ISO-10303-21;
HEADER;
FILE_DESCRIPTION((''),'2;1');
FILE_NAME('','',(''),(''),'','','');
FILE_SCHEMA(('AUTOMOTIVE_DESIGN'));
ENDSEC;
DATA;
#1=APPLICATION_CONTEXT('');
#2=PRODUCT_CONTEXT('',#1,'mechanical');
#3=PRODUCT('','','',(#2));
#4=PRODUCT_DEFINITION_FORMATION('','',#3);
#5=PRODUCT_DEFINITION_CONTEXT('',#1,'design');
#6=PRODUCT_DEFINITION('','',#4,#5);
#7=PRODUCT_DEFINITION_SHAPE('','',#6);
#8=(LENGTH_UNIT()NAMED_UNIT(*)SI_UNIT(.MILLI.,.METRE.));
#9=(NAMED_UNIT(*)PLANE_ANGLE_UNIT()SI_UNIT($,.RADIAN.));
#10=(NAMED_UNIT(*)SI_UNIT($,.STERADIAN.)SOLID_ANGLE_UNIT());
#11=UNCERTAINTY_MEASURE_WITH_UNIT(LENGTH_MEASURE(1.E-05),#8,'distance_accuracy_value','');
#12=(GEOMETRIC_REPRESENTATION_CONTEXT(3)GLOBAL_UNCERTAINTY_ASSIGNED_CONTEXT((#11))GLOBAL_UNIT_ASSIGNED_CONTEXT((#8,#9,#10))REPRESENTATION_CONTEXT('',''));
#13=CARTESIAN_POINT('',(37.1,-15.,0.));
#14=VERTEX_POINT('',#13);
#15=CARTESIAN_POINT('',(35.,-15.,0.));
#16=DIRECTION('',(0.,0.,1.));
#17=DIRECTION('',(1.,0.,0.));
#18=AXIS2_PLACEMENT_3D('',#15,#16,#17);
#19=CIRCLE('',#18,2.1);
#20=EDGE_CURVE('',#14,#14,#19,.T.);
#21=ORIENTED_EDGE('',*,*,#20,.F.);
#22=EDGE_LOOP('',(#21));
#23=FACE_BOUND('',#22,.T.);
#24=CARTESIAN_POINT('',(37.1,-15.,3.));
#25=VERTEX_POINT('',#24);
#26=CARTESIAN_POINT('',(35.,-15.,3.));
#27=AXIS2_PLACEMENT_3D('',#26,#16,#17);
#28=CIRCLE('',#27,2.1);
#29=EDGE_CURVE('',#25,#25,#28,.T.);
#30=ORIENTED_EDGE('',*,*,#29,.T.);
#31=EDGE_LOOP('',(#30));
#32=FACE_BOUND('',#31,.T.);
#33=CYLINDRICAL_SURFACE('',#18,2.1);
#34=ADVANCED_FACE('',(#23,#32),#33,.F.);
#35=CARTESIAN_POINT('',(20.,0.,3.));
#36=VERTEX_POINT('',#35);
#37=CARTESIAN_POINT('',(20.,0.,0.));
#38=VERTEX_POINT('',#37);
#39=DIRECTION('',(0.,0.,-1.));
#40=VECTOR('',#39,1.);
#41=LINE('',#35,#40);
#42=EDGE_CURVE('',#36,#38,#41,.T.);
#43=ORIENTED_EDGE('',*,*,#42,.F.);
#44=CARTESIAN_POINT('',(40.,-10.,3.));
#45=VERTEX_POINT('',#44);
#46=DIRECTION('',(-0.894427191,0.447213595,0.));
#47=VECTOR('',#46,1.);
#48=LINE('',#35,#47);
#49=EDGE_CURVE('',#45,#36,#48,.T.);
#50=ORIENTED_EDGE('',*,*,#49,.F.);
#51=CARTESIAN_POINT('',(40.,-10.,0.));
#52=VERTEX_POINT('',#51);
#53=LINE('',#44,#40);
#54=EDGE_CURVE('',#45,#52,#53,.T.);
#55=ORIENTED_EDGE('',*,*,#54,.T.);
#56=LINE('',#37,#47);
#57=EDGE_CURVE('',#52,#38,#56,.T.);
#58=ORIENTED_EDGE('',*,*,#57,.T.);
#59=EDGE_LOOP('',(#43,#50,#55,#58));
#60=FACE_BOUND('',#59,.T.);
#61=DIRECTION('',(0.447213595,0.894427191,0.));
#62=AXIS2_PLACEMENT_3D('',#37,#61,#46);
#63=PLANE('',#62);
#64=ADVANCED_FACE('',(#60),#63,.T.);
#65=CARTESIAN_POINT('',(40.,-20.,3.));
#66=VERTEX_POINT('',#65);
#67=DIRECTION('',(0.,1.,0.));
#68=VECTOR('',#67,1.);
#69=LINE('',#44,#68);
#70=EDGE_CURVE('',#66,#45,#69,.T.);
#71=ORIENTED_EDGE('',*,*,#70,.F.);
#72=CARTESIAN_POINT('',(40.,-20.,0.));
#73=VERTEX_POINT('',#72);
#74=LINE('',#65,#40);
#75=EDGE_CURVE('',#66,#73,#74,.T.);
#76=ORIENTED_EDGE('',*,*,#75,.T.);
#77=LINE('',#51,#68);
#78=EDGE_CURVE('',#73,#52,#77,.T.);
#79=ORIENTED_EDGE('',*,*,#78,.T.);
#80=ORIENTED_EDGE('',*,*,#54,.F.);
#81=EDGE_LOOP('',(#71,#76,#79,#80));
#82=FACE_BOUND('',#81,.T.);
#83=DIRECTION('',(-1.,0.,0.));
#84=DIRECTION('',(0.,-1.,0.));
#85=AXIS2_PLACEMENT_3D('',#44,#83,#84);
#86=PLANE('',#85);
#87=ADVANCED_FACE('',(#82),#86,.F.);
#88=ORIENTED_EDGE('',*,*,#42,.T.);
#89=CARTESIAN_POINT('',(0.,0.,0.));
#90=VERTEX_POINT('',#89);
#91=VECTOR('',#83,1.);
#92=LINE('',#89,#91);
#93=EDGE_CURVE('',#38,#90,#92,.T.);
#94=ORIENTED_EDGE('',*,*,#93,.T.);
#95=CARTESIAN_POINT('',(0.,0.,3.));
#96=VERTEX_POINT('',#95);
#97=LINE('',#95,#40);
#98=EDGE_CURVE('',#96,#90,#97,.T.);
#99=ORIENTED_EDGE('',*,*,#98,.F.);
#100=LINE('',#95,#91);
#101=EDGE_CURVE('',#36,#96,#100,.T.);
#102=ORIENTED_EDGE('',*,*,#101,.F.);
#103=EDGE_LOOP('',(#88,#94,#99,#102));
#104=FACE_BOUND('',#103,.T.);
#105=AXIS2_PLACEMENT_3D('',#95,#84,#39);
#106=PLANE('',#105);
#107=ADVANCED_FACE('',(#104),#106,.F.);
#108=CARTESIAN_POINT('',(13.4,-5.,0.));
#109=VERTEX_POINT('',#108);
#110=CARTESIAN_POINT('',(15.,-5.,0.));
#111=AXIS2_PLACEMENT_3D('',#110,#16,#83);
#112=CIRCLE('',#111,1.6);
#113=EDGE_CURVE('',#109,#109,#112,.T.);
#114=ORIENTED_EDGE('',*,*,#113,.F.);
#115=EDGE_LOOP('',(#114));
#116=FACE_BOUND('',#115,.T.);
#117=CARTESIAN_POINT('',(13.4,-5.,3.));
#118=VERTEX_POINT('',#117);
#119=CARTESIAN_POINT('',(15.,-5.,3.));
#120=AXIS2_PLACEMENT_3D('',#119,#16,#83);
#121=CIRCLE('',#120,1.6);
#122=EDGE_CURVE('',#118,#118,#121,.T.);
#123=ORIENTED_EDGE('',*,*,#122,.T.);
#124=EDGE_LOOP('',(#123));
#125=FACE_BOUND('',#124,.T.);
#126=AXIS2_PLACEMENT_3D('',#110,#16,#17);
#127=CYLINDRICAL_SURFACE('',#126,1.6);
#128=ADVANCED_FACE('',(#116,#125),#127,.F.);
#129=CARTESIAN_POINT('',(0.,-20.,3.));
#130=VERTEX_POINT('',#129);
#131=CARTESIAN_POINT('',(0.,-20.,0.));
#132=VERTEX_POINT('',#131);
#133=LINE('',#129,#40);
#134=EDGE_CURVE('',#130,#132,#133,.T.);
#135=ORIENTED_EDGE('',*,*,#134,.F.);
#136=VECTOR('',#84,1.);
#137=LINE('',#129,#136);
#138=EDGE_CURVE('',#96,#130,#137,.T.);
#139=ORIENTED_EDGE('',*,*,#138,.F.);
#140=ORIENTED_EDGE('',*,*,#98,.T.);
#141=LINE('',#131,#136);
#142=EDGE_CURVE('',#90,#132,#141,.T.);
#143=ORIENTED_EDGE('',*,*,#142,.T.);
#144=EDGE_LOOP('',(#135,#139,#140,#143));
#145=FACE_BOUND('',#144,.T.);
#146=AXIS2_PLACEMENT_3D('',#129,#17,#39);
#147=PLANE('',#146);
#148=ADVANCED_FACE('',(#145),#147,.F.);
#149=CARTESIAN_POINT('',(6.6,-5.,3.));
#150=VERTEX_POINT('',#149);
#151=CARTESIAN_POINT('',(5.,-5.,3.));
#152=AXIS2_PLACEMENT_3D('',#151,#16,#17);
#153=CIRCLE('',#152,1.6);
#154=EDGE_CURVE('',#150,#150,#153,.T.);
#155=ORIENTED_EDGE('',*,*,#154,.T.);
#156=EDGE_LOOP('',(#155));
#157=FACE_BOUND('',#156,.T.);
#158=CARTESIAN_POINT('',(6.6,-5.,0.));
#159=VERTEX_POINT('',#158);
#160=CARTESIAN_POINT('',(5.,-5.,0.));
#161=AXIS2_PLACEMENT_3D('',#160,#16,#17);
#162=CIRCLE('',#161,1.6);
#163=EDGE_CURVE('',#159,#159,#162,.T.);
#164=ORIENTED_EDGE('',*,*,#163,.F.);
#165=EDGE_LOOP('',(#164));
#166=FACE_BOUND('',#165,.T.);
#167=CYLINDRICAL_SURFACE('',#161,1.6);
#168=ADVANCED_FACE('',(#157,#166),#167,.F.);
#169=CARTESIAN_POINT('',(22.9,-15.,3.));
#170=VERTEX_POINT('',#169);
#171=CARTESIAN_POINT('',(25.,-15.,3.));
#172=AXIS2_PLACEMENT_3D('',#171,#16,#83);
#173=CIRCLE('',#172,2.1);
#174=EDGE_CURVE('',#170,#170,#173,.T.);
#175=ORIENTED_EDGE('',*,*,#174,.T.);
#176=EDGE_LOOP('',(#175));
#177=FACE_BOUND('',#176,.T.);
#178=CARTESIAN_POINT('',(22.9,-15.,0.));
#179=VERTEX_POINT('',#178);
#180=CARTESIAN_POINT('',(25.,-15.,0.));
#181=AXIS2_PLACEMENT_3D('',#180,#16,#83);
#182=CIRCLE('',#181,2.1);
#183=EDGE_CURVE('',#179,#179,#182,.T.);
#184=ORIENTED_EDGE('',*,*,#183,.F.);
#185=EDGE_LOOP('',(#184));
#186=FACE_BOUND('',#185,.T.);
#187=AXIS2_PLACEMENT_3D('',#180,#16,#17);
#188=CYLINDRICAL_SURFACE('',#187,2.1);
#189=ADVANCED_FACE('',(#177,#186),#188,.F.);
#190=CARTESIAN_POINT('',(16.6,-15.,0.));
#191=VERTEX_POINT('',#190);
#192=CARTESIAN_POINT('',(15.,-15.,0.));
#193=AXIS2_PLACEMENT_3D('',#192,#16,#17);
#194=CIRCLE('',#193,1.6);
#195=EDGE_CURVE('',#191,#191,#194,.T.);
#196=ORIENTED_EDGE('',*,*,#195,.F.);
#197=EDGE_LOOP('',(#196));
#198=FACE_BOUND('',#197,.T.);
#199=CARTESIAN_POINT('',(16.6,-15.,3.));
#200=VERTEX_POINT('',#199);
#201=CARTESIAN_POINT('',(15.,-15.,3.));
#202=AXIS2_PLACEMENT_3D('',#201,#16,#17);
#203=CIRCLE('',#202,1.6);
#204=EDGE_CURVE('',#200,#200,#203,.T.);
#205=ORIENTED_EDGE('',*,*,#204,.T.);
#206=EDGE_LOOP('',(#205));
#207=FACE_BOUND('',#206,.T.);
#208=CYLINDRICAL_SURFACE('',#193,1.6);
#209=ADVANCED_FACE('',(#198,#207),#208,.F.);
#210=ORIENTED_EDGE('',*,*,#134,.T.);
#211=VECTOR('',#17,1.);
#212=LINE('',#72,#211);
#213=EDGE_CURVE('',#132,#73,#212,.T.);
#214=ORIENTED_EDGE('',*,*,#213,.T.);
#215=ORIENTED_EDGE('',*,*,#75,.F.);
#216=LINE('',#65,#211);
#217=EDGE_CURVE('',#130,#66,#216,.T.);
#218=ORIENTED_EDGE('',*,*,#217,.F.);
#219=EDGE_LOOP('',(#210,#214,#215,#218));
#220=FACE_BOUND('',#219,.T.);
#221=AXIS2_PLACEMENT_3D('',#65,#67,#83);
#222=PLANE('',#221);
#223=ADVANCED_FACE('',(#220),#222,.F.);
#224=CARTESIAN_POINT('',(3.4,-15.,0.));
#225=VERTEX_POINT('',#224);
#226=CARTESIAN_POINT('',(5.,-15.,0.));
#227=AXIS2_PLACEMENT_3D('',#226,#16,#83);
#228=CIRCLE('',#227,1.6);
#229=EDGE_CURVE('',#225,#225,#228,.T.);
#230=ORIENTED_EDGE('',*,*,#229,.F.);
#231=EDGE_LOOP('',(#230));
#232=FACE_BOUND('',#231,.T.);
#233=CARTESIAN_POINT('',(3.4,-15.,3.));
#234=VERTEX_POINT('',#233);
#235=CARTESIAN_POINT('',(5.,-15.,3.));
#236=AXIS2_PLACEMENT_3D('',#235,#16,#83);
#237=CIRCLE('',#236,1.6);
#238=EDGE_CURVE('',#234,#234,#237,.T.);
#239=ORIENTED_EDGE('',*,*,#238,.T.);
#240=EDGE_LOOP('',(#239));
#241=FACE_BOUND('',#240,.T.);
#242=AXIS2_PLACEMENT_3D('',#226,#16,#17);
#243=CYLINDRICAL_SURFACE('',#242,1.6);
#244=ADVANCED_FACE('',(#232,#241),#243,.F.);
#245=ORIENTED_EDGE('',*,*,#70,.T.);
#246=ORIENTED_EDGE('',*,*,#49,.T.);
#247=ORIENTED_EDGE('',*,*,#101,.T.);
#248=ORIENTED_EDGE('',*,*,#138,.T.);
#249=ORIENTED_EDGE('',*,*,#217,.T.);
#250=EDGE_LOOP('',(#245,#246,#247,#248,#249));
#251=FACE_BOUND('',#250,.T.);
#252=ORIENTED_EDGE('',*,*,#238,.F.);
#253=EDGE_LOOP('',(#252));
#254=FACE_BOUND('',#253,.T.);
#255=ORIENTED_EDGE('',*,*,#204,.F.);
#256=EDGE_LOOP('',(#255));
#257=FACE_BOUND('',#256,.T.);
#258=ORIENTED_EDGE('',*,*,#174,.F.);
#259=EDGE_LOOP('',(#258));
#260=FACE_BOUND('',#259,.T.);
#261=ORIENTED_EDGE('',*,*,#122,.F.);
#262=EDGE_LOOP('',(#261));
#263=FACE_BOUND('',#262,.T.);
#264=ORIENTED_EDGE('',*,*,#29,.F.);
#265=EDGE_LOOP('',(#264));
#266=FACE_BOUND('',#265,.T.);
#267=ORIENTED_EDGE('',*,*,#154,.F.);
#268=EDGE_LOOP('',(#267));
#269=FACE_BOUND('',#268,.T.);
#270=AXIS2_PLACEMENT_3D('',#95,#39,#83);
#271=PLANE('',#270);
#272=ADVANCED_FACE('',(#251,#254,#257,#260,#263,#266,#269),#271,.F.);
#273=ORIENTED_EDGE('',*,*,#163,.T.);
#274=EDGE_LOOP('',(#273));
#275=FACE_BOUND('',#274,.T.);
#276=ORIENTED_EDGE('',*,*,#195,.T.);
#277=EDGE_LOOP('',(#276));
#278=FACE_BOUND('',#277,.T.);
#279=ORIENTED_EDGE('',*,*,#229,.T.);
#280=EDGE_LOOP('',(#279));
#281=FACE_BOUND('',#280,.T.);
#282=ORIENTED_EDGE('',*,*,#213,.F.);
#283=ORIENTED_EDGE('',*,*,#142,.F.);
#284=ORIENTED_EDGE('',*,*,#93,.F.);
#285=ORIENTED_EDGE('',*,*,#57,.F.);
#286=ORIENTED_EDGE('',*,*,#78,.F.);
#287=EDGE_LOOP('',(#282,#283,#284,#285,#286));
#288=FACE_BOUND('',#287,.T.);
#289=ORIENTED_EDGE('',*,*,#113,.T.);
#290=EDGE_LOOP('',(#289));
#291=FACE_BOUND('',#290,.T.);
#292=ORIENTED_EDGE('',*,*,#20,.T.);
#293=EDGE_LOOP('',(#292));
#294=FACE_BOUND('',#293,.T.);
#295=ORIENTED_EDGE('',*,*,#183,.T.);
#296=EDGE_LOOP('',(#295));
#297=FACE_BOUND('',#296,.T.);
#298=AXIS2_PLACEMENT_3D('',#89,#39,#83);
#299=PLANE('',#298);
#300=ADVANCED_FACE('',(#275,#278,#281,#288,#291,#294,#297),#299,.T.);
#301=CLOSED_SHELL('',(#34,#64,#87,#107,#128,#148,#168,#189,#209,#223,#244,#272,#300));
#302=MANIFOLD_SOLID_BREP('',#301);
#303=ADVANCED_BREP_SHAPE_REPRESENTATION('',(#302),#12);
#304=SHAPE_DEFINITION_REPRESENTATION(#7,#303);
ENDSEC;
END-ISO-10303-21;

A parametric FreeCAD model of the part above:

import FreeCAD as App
import Part
import Sketcher

V = App.Vector

doc = App.newDocument("Part")
body = doc.addObject("PartDesign::Body", "Body")

# Sketch on XY plane
sketch1 = body.newObject("Sketcher::SketchObject", "Sketch")
sketch1.AttachmentSupport = (doc.getObject("XY_Plane"), [""])
sketch1.MapMode = "FlatFace"
sketch1.addGeometry([
    Part.LineSegment(V(20, 0, 0), V(0, 0, 0)),  # 0
    Part.LineSegment(V(0, 0, 0), V(0, -20, 0)),  # 1
    Part.LineSegment(V(0, -20, 0), V(40, -20, 0)),  # 2
    Part.LineSegment(V(40, -20, 0), V(40, -10, 0)),  # 3
    Part.LineSegment(V(40, -10, 0), V(20, -10, 0)),  # 4
    Part.LineSegment(V(20, -10, 0), V(20, 0, 0)),  # 5
], False)
sketch1.addConstraint([
    Sketcher.Constraint("Coincident", 0, 2, 1, 1),
    Sketcher.Constraint("Coincident", 1, 2, 2, 1),
    Sketcher.Constraint("Coincident", 2, 2, 3, 1),
    Sketcher.Constraint("Coincident", 3, 2, 4, 1),
    Sketcher.Constraint("Coincident", 4, 2, 5, 1),
    Sketcher.Constraint("Coincident", 5, 2, 0, 1),
    Sketcher.Constraint("Horizontal", 0),
    Sketcher.Constraint("Vertical", 1),
    Sketcher.Constraint("Horizontal", 2),
    Sketcher.Constraint("Vertical", 3),
    Sketcher.Constraint("Horizontal", 4),
    Sketcher.Constraint("Vertical", 5),
    Sketcher.Constraint("Coincident", 0, 2, -1, 1),
    Sketcher.Constraint("Equal", 0, 4),
    Sketcher.Constraint("Equal", 4, 1),
    Sketcher.Constraint("Equal", 3, 5),
    Sketcher.Constraint("DistanceX", 0, 2, 0, 1, 20.0),
])
pad1 = body.newObject("PartDesign::Pad", "Pad")
pad1.Profile = sketch1
pad1.Length = 3

# Sketch on XY plane
sketch2 = body.newObject("Sketcher::SketchObject", "Sketch001")
sketch2.AttachmentSupport = (doc.getObject("XY_Plane"), [""])
sketch2.MapMode = "FlatFace"
sketch2.AttachmentOffset = App.Placement(V(0, 0, 3), App.Rotation())
sketch2.addGeometry([
    Part.Circle(V(5, -5, 0), V(0, 0, 1), 1.6),  # 0
    Part.Circle(V(5, -15, 0), V(0, 0, 1), 1.6),  # 1
    Part.Circle(V(15, -5, 0), V(0, 0, 1), 1.6),  # 2
    Part.Circle(V(15, -15, 0), V(0, 0, 1), 1.6),  # 3
    Part.Circle(V(35, -15, 0), V(0, 0, 1), 2.1),  # 4
    Part.Circle(V(25, -15, 0), V(0, 0, 1), 2.1),  # 5
], False)
sketch2.addConstraint([
    Sketcher.Constraint("Equal", 0, 1),
    Sketcher.Constraint("Equal", 1, 2),
    Sketcher.Constraint("Equal", 2, 3),
    Sketcher.Constraint("Equal", 4, 5),
    Sketcher.Constraint("Horizontal", 0, 3, 2, 3),
    Sketcher.Constraint("Horizontal", 1, 3, 3, 3),
    Sketcher.Constraint("Horizontal", 3, 3, 4, 3),
    Sketcher.Constraint("Horizontal", 4, 3, 5, 3),
    Sketcher.Constraint("Vertical", 0, 3, 1, 3),
    Sketcher.Constraint("Vertical", 2, 3, 3, 3),
    Sketcher.Constraint("Diameter", 0, 3.2),
    Sketcher.Constraint("Diameter", 4, 4.2),
    Sketcher.Constraint("DistanceX", -1, 1, 0, 3, 5.0),
    Sketcher.Constraint("DistanceY", 0, 3, -1, 1, 5.0),
    Sketcher.Constraint("DistanceY", 1, 3, -1, 1, 15.0),
    Sketcher.Constraint("DistanceX", -1, 1, 2, 3, 15.0),
    Sketcher.Constraint("DistanceX", -1, 1, 4, 3, 35.0),
    Sketcher.Constraint("DistanceX", -1, 1, 5, 3, 25.0),
])
pocket1 = body.newObject("PartDesign::Pocket", "Pocket")
pocket1.Profile = sketch2
pocket1.Type = "ThroughAll"

# Sketch on XY plane
sketch3 = body.newObject("Sketcher::SketchObject", "Sketch002")
sketch3.AttachmentSupport = (doc.getObject("XY_Plane"), [""])
sketch3.MapMode = "FlatFace"
sketch3.AttachmentOffset = App.Placement(V(0, 0, 3), App.Rotation())
sketch3.addGeometry([
    Part.LineSegment(V(40, -10, 0), V(20, 0, 0)),
    Part.LineSegment(V(20, 0, 0), V(20, -10, 0)),
    Part.LineSegment(V(20, -10, 0), V(40, -10, 0)),
], False)
sketch3.addConstraint([
    Sketcher.Constraint("Coincident", 0, 2, 1, 1),
    Sketcher.Constraint("Coincident", 1, 2, 2, 1),
    Sketcher.Constraint("Coincident", 2, 2, 0, 1),
    Sketcher.Constraint("Vertical", 1),
    Sketcher.Constraint("Horizontal", 2),
    Sketcher.Constraint("PointOnObject", 0, 2, -1),
    Sketcher.Constraint("DistanceX", 2, 1, 2, 2, 20.0),
    Sketcher.Constraint("DistanceY", 1, 2, 1, 1, 10.0),
    Sketcher.Constraint("DistanceX", -1, 1, 0, 2, 20.0),
])
pad2 = body.newObject("PartDesign::Pad", "Pad001")
pad2.Profile = sketch3
pad2.Length = 3
pad2.Reversed = True

doc.recompute()
